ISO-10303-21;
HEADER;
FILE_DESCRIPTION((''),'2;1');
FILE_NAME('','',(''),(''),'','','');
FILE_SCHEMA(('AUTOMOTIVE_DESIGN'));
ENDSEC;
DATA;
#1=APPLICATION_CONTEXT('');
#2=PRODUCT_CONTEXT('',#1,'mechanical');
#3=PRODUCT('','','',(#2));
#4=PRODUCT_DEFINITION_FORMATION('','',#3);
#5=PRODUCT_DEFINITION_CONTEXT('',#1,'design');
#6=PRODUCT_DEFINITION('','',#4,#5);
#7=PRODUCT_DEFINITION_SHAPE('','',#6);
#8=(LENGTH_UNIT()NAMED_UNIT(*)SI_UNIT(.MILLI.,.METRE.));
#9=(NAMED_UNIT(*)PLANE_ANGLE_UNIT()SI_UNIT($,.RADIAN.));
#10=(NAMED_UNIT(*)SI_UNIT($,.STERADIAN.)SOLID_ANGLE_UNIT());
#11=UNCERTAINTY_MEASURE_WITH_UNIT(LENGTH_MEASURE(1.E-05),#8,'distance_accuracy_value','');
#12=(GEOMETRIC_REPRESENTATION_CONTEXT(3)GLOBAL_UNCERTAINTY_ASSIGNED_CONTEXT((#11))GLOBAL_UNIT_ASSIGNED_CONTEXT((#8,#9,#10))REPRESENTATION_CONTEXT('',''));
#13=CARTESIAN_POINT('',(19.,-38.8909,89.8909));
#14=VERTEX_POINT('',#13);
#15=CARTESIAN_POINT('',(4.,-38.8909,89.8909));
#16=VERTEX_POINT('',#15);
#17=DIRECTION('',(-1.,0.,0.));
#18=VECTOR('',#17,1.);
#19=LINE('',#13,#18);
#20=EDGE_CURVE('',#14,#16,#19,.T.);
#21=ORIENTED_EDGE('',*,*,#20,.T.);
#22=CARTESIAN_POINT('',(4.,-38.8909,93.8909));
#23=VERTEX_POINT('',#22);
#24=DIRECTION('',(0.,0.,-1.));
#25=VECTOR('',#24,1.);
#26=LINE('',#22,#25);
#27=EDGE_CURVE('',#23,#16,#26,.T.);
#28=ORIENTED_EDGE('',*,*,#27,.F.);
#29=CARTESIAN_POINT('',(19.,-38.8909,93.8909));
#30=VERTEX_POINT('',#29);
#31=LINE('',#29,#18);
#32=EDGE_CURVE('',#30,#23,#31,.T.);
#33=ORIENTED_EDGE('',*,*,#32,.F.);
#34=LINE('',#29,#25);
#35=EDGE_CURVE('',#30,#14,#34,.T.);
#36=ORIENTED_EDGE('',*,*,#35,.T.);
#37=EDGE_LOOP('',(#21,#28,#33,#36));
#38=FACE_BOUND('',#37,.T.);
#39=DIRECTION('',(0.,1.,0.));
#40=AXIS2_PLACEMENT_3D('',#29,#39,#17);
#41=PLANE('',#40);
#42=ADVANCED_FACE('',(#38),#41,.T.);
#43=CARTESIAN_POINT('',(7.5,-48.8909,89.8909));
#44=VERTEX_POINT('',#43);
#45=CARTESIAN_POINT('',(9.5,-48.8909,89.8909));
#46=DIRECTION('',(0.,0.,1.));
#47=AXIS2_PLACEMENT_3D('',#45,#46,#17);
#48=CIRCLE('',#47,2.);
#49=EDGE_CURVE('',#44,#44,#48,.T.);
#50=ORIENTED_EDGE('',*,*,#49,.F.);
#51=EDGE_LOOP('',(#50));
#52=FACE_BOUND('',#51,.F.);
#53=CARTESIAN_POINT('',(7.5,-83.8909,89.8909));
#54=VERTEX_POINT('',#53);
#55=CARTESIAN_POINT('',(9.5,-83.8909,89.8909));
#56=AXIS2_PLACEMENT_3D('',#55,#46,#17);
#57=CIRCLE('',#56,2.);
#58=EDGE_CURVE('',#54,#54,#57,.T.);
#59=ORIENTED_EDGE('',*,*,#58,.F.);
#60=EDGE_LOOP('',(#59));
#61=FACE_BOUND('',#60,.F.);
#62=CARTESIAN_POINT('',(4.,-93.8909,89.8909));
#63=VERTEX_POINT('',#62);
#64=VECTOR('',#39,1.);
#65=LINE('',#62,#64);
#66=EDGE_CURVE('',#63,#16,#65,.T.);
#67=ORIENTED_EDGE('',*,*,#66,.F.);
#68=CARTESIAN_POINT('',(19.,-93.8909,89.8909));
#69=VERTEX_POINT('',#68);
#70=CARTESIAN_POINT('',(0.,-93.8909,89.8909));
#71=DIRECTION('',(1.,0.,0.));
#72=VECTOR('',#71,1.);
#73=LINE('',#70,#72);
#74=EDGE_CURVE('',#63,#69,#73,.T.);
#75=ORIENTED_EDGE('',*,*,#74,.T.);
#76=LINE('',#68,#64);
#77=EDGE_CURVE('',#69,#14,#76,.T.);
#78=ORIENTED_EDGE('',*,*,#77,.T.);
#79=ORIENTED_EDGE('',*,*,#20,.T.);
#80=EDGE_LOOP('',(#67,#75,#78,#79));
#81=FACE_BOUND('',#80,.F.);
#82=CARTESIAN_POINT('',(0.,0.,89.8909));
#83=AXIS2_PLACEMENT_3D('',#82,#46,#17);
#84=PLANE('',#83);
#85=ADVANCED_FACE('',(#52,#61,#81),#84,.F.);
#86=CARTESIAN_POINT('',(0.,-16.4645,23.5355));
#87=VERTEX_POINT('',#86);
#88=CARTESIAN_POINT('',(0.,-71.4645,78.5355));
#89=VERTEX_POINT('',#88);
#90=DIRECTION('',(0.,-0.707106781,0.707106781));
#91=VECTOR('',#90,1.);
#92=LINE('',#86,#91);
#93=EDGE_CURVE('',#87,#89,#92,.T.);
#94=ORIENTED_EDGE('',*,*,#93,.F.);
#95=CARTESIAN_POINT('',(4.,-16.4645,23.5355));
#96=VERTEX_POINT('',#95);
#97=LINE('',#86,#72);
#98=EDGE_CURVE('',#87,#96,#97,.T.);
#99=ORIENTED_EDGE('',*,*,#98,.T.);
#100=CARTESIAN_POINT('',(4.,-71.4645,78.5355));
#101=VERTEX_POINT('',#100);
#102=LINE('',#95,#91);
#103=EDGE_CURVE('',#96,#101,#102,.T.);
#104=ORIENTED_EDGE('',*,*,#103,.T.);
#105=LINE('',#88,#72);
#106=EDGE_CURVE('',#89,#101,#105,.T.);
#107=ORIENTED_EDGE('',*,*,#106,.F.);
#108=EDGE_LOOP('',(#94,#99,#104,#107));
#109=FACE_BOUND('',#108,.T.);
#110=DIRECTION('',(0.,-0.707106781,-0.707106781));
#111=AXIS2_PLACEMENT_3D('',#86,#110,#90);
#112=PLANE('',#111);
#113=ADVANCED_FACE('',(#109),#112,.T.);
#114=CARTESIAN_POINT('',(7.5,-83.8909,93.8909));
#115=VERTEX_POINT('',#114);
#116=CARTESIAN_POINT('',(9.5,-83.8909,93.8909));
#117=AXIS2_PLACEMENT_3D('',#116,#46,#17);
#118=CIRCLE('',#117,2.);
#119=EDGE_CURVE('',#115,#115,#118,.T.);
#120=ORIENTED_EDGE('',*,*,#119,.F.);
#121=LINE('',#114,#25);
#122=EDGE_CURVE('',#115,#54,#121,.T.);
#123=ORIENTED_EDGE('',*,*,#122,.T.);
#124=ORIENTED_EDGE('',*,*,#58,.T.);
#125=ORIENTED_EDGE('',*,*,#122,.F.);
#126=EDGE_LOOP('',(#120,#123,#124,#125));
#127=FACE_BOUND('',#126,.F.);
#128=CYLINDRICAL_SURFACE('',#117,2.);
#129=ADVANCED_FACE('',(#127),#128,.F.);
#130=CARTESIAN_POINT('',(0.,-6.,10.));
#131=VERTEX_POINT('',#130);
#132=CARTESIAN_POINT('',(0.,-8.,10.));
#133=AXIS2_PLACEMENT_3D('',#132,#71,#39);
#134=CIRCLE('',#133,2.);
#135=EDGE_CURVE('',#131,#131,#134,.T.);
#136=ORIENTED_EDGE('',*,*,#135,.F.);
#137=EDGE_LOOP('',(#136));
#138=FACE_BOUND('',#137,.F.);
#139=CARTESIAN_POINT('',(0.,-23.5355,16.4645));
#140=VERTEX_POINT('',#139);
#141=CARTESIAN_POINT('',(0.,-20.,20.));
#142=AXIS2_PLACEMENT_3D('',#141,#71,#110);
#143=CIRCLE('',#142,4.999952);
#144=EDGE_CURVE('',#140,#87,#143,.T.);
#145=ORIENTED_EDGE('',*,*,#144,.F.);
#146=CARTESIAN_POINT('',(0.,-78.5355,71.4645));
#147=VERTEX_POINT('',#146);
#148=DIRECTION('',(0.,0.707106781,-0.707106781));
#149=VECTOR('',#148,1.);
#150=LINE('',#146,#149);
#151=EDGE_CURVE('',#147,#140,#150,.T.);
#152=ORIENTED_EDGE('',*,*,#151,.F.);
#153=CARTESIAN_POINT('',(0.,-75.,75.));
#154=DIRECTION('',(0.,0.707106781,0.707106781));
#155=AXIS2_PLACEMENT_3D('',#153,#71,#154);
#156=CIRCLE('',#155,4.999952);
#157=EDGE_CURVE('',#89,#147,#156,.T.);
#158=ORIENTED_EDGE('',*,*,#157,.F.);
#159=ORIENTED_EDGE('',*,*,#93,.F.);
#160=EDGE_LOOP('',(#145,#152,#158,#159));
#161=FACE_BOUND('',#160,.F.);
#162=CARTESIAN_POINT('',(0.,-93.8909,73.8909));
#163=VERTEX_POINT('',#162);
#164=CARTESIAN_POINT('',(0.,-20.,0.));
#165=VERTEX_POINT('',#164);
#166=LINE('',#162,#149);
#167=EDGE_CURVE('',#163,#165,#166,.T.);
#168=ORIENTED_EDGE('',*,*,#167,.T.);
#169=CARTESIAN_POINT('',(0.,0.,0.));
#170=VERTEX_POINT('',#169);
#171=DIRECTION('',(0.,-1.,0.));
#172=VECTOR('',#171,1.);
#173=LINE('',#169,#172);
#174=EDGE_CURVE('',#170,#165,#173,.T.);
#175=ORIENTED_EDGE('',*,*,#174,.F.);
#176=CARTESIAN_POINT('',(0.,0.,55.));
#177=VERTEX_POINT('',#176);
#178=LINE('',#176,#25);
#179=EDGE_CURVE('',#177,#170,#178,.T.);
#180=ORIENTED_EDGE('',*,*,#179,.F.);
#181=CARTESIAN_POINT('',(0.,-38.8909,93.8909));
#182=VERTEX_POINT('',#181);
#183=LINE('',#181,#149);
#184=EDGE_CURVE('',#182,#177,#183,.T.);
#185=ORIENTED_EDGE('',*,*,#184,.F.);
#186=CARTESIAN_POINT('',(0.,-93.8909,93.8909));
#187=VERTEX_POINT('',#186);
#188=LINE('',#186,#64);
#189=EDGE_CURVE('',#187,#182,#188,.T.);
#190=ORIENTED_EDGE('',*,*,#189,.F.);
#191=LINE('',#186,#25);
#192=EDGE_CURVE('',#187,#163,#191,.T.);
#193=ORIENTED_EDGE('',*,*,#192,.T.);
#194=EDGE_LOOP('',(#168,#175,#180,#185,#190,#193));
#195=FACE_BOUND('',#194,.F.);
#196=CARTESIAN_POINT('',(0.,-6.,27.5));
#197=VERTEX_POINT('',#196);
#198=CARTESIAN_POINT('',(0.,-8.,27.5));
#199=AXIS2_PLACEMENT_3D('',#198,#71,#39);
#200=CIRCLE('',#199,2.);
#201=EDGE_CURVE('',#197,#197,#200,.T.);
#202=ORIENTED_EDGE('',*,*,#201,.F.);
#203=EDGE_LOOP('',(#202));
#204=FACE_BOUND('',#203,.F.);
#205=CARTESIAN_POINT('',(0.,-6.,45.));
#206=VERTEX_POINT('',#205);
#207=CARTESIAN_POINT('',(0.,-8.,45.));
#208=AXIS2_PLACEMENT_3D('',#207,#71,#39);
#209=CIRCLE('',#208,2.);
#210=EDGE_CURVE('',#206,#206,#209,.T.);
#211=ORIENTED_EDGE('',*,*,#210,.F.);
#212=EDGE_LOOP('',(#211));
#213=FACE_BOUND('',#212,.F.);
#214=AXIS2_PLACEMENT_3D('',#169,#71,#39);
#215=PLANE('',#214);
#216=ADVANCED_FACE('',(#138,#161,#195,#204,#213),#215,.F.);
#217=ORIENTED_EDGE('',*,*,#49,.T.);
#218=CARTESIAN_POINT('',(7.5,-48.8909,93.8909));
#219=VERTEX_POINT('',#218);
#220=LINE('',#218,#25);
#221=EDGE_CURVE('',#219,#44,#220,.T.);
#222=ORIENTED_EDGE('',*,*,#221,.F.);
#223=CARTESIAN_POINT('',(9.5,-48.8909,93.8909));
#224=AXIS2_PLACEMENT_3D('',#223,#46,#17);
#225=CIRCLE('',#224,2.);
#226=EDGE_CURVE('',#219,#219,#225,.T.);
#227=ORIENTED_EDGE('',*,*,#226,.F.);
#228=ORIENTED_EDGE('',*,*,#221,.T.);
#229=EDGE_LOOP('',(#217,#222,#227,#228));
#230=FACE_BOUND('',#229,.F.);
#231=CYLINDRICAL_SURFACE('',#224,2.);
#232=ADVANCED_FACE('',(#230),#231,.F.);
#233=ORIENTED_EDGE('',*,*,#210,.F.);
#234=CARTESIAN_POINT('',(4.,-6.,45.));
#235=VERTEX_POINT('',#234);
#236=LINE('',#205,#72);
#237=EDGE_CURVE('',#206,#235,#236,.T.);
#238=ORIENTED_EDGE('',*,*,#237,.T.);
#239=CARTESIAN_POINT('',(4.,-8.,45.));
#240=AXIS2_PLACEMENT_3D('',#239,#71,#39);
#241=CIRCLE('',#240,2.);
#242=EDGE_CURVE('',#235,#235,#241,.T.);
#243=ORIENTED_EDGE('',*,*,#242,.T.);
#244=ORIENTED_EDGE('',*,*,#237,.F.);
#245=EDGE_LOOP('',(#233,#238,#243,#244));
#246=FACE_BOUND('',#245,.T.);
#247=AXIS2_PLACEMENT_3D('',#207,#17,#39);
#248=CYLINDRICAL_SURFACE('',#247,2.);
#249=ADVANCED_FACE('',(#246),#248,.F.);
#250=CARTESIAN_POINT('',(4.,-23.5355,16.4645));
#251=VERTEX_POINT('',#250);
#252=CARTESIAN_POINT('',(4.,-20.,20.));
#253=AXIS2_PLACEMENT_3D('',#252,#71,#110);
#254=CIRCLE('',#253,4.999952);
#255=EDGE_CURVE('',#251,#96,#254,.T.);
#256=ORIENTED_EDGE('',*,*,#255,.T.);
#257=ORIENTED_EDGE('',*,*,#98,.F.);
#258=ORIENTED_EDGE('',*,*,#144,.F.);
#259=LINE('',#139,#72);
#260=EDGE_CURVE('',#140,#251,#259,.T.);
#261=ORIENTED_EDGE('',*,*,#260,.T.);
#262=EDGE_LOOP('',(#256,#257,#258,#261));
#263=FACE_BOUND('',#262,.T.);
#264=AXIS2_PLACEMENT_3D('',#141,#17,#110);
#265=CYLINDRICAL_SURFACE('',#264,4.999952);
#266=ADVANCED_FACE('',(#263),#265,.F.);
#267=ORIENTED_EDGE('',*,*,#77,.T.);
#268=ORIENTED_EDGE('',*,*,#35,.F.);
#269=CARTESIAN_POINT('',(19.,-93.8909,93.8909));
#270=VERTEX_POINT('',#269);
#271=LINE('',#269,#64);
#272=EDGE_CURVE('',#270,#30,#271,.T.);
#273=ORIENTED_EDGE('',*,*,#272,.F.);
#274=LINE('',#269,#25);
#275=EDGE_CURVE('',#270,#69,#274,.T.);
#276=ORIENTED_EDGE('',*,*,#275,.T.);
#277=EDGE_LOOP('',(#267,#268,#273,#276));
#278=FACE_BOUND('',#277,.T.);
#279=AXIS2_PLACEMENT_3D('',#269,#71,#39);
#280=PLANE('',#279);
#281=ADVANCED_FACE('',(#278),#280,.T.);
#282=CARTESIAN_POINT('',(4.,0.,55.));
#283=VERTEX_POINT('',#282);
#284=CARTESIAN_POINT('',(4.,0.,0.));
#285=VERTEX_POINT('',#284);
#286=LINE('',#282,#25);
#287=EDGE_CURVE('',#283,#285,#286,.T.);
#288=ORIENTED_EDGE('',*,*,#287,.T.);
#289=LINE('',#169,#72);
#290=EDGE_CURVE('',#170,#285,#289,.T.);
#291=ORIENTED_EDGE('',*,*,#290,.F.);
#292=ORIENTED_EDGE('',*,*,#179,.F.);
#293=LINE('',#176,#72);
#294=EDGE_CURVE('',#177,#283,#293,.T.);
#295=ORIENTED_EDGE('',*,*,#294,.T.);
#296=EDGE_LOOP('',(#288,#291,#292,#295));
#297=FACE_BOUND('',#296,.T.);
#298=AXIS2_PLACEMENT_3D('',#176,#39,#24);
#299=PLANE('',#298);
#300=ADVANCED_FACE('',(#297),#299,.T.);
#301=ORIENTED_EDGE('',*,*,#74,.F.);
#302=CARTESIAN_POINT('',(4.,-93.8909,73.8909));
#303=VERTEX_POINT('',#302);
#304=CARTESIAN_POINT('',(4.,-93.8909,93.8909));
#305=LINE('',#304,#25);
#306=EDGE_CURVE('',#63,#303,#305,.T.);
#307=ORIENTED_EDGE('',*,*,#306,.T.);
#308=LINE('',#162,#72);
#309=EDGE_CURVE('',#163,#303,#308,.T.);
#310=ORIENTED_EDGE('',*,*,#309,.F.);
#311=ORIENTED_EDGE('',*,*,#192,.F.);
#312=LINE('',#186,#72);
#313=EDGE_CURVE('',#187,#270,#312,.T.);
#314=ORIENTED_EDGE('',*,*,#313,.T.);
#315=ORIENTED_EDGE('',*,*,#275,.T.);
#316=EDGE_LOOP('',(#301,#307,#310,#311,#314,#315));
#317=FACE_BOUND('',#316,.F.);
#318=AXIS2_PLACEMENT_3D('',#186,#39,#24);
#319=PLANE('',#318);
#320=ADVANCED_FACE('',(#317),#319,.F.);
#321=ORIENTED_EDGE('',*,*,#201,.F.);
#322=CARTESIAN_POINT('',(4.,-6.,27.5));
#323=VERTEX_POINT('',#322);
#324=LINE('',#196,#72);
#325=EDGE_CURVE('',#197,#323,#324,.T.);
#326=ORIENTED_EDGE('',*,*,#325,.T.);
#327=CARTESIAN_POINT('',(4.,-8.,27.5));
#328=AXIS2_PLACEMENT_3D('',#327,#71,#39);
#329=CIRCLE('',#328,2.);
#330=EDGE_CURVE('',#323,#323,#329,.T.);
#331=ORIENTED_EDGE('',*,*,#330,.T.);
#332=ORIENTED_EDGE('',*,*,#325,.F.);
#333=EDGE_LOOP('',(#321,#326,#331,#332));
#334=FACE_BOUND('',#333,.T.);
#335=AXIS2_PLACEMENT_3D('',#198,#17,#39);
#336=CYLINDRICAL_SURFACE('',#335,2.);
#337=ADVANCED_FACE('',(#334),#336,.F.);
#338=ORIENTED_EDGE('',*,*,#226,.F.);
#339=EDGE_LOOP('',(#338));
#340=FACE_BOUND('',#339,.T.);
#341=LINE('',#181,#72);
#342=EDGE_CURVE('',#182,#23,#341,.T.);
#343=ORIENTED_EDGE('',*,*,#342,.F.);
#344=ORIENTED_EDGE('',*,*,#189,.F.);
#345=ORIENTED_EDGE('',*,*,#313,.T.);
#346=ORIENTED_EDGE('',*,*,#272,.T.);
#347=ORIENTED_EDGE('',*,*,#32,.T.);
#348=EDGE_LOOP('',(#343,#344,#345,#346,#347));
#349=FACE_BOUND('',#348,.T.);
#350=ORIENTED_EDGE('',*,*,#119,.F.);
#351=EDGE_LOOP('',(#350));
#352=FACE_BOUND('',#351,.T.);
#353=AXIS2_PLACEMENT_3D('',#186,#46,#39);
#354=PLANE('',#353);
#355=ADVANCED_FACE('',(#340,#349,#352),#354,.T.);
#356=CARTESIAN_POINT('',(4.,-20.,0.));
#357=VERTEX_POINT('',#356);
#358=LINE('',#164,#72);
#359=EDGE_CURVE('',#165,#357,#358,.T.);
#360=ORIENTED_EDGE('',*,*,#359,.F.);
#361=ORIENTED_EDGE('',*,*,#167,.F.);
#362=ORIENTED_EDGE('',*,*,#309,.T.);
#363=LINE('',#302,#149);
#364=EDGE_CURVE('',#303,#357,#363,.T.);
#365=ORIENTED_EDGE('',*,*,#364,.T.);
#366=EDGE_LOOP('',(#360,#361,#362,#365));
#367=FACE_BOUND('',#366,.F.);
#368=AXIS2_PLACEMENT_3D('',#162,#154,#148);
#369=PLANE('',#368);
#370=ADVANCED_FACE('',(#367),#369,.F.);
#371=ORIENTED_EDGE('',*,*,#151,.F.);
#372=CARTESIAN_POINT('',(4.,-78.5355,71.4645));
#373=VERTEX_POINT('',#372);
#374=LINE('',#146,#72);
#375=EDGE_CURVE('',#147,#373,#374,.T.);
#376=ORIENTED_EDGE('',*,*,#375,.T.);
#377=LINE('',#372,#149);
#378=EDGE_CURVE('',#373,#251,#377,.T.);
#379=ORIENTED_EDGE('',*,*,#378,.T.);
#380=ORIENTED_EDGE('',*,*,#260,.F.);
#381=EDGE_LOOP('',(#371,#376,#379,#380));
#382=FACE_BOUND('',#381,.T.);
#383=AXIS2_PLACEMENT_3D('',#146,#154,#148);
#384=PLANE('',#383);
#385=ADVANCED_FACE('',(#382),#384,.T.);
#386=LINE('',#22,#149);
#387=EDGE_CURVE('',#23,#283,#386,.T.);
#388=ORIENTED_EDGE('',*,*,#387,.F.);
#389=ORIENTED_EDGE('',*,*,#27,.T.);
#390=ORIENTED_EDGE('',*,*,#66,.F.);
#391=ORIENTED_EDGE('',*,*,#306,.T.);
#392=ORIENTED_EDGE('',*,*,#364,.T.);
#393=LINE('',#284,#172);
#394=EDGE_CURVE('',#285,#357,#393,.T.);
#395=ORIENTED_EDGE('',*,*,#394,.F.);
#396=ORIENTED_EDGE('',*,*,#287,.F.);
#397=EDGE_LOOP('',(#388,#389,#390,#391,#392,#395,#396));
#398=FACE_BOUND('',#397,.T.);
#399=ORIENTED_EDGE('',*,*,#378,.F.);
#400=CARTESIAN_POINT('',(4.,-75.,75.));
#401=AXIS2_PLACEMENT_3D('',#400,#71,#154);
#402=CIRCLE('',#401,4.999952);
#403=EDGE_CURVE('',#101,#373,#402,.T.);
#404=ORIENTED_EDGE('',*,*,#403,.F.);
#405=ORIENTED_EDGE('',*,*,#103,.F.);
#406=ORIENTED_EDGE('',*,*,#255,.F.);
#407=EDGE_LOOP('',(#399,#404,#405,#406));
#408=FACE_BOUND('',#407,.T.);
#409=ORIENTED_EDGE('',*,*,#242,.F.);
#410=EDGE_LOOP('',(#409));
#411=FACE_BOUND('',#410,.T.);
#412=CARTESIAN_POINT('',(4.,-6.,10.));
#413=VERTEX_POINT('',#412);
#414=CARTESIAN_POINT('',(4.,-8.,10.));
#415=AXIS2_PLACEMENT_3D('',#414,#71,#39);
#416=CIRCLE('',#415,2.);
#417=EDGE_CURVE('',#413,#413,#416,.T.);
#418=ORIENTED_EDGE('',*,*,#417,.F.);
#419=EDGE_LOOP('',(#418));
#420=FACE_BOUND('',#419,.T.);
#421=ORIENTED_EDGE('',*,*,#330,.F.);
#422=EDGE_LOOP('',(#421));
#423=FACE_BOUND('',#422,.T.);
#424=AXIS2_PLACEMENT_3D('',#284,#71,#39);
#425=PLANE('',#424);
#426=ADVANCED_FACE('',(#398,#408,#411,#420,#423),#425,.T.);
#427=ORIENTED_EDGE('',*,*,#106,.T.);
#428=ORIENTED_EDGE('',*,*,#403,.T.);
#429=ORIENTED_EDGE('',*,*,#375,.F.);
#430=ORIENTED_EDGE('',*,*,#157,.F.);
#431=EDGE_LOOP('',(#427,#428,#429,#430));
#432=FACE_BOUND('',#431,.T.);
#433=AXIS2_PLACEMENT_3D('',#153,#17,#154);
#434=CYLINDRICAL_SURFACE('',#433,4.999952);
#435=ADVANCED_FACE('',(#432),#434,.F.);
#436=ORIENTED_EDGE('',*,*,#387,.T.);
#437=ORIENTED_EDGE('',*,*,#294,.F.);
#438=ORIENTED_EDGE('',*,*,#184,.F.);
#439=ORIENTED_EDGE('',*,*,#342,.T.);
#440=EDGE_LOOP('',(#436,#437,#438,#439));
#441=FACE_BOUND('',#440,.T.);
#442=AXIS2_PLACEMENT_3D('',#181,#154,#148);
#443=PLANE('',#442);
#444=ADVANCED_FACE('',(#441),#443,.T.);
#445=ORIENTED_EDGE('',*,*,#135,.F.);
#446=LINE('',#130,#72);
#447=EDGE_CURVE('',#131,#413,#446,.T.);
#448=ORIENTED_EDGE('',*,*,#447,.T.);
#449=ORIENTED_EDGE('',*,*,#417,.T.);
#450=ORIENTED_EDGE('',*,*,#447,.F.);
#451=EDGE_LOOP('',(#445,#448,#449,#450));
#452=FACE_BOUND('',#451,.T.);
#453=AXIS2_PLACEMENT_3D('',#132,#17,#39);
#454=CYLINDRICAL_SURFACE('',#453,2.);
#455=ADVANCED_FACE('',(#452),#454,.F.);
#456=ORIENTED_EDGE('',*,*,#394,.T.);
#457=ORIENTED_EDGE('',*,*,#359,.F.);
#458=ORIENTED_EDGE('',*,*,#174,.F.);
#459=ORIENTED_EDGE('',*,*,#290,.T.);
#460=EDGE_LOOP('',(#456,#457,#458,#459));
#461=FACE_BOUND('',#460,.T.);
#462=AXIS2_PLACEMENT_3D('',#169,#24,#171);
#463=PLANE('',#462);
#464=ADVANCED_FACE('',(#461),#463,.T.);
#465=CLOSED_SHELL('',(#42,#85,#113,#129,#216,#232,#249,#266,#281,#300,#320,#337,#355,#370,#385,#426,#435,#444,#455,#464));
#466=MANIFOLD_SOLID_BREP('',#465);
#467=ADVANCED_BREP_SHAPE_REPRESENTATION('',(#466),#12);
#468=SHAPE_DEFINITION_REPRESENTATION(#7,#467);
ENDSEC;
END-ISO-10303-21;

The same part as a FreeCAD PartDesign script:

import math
import FreeCAD as App
import Part
import Sketcher

V = App.Vector


def add_polygon(sketch, points):
    """Adds a closed chain of lines whose ends are joined by coincident constraints."""
    first, n = sketch.GeometryCount, len(points)
    for a, b in zip(points, points[1:] + points[:1]):
        sketch.addGeometry(Part.LineSegment(App.Vector(*a, 0), App.Vector(*b, 0)), False)
    for i in range(n):
        sketch.addConstraint(Sketcher.Constraint("Coincident", first + i, 2, first + (i + 1) % n, 1))

doc = App.newDocument("Part")
body = doc.addObject("PartDesign::Body", "Body")

sketch1 = doc.addObject("Sketcher::SketchObject", "Sketch")
body.addObject(sketch1)
sketch1.AttachmentSupport = (doc.YZ_Plane, [""])
sketch1.MapMode = "FlatFace"
add_polygon(sketch1, [(-38.9, 93.9), (-93.9, 93.9), (-93.9, 73.9), (-20, 0), (0, 0), (0, 55)])
sketch1.addGeometry(Part.Circle(V(-8, 10, 0), V(0, 0, 1), 2), False)
sketch1.addGeometry(Part.Circle(V(-8, 27.5, 0), V(0, 0, 1), 2), False)
sketch1.addGeometry(Part.Circle(V(-8, 45, 0), V(0, 0, 1), 2), False)
sketch1.addGeometry(Part.LineSegment(V(-71.5, 78.5, 0), V(-16.5, 23.5, 0)), False)
sketch1.addGeometry(Part.ArcOfCircle(Part.Circle(V(-20, 20, 0), V(0, 0, 1), 5), math.radians(-135), math.radians(45)), False)
sketch1.addGeometry(Part.LineSegment(V(-23.5, 16.5, 0), V(-78.5, 71.5, 0)), False)
sketch1.addGeometry(Part.ArcOfCircle(Part.Circle(V(-75, 75, 0), V(0, 0, 1), 5), math.radians(45), math.radians(225)), False)
sketch1.addConstraint([
    Sketcher.Constraint("Tangent", 9, 2, 10, 2),
    Sketcher.Constraint("Tangent", 10, 1, 11, 1),
    Sketcher.Constraint("Tangent", 11, 2, 12, 2),
    Sketcher.Constraint("Tangent", 12, 1, 9, 1),
    Sketcher.Constraint("Horizontal", 0),
    Sketcher.Constraint("Vertical", 1),
    Sketcher.Constraint("Horizontal", 3),
    Sketcher.Constraint("Vertical", 4),
    Sketcher.Constraint("Coincident", 3, 2, -1, 1),
    Sketcher.Constraint("Equal", 6, 7),
    Sketcher.Constraint("Equal", 7, 8),
    Sketcher.Constraint("Equal", 10, 12),
    Sketcher.Constraint("Parallel", 2, 5),
    Sketcher.Constraint("Parallel", 5, 9),
    Sketcher.Constraint("Vertical", 6, 3, 7, 3),
    Sketcher.Constraint("Vertical", 7, 3, 8, 3),
    Sketcher.Constraint("Vertical", 10, 3, 2, 2),
    Sketcher.Constraint("Equal", 3, 1),
    Sketcher.Constraint("Equal", 0, 4),
    Sketcher.Constraint("Diameter", 6, 4.0),
    Sketcher.Constraint("Radius", 10, 5.0),
    Sketcher.Constraint("DistanceX", 0, 2, 0, 1, 55.0),
    Sketcher.Constraint("DistanceX", 3, 1, 3, 2, 20.0),
    Sketcher.Constraint("Distance", 5, 55.0),
    Sketcher.Constraint("DistanceX", 6, 3, -1, 1, 8.0),
    Sketcher.Constraint("DistanceY", -1, 1, 6, 3, 10.0),
    Sketcher.Constraint("DistanceY", -1, 1, 10, 3, 20.0),
    Sketcher.Constraint("DistanceY", 6, 3, 8, 3, 35.0),
    Sketcher.Constraint("DistanceX", 12, 3, 10, 3, 55.0),
    Sketcher.Constraint("DistanceY", -1, 1, 7, 3, 27.5),
])
pad1 = doc.addObject("PartDesign::Pad", "Pad")
body.addObject(pad1)
pad1.Profile = sketch1
pad1.Length = 4

sketch2 = doc.addObject("Sketcher::SketchObject", "Sketch001")
body.addObject(sketch2)
sketch2.AttachmentSupport = (doc.XY_Plane, [""])
sketch2.MapMode = "FlatFace"
sketch2.AttachmentOffset = App.Placement(V(0, 0, 93.8909), App.Rotation())
add_polygon(sketch2, [(19, -38.9), (4, -38.9), (4, -93.9), (19, -93.9)])
sketch2.addGeometry(Part.Circle(V(9.5, -48.9, 0), V(0, 0, 1), 2), False)
sketch2.addGeometry(Part.Circle(V(9.5, -83.9, 0), V(0, 0, 1), 2), False)
sketch2.addConstraint([
    Sketcher.Constraint("Horizontal", 0),
    Sketcher.Constraint("Vertical", 1),
    Sketcher.Constraint("Horizontal", 2),
    Sketcher.Constraint("Vertical", 3),
    Sketcher.Constraint("Equal", 4, 5),
    Sketcher.Constraint("Vertical", 4, 3, 5, 3),
    Sketcher.Constraint("Diameter", 4, 4.0),
    Sketcher.Constraint("DistanceY", 1, 2, 1, 1, 55.0),
    Sketcher.Constraint("DistanceX", -1, 1, 0, 2, 4.0),
    Sketcher.Constraint("DistanceX", -1, 1, 2, 2, 19.0),
    Sketcher.Constraint("DistanceY", 5, 3, 4, 3, 35.0),
    Sketcher.Constraint("DistanceY", 4, 3, 0, 2, 10.0),
    Sketcher.Constraint("DistanceX", -1, 1, 4, 3, 9.5),
    Sketcher.Constraint("DistanceY", 4, 3, -1, 1, 48.891),
])
pad2 = doc.addObject("PartDesign::Pad", "Pad001")
body.addObject(pad2)
pad2.Profile = sketch2
pad2.Length = 4
pad2.Reversed = True

doc.recompute()
